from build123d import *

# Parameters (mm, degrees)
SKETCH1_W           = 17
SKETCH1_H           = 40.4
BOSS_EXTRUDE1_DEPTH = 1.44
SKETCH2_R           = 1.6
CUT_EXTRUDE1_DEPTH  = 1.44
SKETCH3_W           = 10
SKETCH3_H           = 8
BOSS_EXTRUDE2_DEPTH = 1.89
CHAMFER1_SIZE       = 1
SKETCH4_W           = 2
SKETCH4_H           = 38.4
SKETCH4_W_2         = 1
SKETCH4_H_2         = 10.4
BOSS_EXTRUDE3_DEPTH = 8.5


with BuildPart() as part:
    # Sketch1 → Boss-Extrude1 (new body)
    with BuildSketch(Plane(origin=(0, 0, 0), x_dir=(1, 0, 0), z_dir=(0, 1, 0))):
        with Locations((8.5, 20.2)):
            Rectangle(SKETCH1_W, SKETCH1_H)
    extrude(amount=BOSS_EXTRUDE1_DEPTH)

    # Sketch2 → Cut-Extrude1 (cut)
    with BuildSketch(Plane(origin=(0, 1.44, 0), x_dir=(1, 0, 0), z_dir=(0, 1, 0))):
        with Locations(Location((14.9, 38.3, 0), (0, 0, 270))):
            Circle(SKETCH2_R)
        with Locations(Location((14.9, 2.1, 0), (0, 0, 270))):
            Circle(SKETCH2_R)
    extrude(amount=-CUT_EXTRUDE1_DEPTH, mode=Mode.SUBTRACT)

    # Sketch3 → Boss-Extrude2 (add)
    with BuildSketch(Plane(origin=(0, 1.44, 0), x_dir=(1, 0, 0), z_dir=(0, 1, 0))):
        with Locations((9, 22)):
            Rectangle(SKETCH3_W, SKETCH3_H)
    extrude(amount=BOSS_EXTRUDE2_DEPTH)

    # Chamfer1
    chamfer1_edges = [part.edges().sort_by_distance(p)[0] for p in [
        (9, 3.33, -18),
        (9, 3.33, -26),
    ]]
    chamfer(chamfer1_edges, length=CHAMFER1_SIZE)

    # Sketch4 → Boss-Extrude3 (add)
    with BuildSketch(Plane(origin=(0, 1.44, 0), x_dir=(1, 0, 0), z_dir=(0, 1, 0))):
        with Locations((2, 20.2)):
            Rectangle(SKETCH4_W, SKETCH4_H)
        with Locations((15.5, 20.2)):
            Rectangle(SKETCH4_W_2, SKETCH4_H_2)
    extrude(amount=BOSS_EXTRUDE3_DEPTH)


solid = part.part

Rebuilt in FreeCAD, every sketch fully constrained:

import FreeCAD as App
import Part
import Sketcher

V = App.Vector


def edges_at(feature, points):
    """Names of the edges that pass closest to the given points."""
    edges = feature.Shape.Edges
    near = lambda p: min(range(len(edges)), key=lambda i: edges[i].distToShape(Part.Vertex(*p))[0])
    return sorted({f"Edge{near(p) + 1}" for p in points})


def add_polygon(sketch, points):
    """Adds a closed chain of lines whose ends are joined by coincident constraints."""
    first, n = sketch.GeometryCount, len(points)
    for a, b in zip(points, points[1:] + points[:1]):
        sketch.addGeometry(Part.LineSegment(App.Vector(*a, 0), App.Vector(*b, 0)), False)
    for i in range(n):
        sketch.addConstraint(Sketcher.Constraint("Coincident", first + i, 2, first + (i + 1) % n, 1))

doc = App.newDocument("Part")
body = doc.addObject("PartDesign::Body", "Body")

# Sketch on XZ plane
sketch1 = doc.addObject("Sketcher::SketchObject", "Sketch")
body.addObject(sketch1)
sketch1.AttachmentSupport = (doc.XZ_Plane, [""])
sketch1.MapMode = "FlatFace"
add_polygon(sketch1, [(0, -40), (0, 0), (17, 0), (17, -40)])  # lines 0-3
sketch1.addConstraint(Sketcher.Constraint("Vertical", 0))
sketch1.addConstraint(Sketcher.Constraint("Horizontal", 1))
sketch1.addConstraint(Sketcher.Constraint("Vertical", 2))
sketch1.addConstraint(Sketcher.Constraint("Horizontal", 3))
sketch1.addConstraint(Sketcher.Constraint("Coincident", 0, 2, -1, 1))
sketch1.addConstraint(Sketcher.Constraint("DistanceX", 1, 1, 1, 2, 17.0))
sketch1.addConstraint(Sketcher.Constraint("DistanceY", 0, 1, 0, 2, 40.4))
pad1 = doc.addObject("PartDesign::Pad", "Pad")
body.addObject(pad1)
pad1.Profile = sketch1
pad1.Length = 1.44
pad1.Reversed = True

# Sketch on XZ plane
sketch2 = doc.addObject("Sketcher::SketchObject", "Sketch001")
body.addObject(sketch2)
sketch2.AttachmentSupport = (doc.XZ_Plane, [""])
sketch2.MapMode = "FlatFace"
sketch2.AttachmentOffset = App.Placement(V(0, 0, -1.44), App.Rotation())
sketch2.addGeometry(Part.Circle(V(14.9, -38.3, 0), V(0, 0, 1), 1.6), False)
sketch2.addGeometry(Part.Circle(V(14.9, -2.1, 0), V(0, 0, 1), 1.6), False)
sketch2.addConstraint(Sketcher.Constraint("Equal", 0, 1))
sketch2.addConstraint(Sketcher.Constraint("Vertical", 0, 3, 1, 3))
sketch2.addConstraint(Sketcher.Constraint("Diameter", 0, 3.2))
sketch2.addConstraint(Sketcher.Constraint("DistanceX", -1, 1, 0, 3, 14.9))
sketch2.addConstraint(Sketcher.Constraint("DistanceY", 0, 3, -1, 1, 38.3))
sketch2.addConstraint(Sketcher.Constraint("DistanceY", 1, 3, -1, 1, 2.1))
pocket1 = doc.addObject("PartDesign::Pocket", "Pocket")
body.addObject(pocket1)
pocket1.Profile = sketch2
pocket1.Length = 1.44
pocket1.Reversed = True

# Sketch on XZ plane
sketch3 = doc.addObject("Sketcher::SketchObject", "Sketch002")
body.addObject(sketch3)
sketch3.AttachmentSupport = (doc.XZ_Plane, [""])
sketch3.MapMode = "FlatFace"
sketch3.AttachmentOffset = App.Placement(V(0, 0, -1.44), App.Rotation())
add_polygon(sketch3, [(4, -26), (4, -18), (14, -18), (14, -26)])  # lines 0-3
sketch3.addConstraint(Sketcher.Constraint("Vertical", 0))
sketch3.addConstraint(Sketcher.Constraint("Horizontal", 1))
sketch3.addConstraint(Sketcher.Constraint("Vertical", 2))
sketch3.addConstraint(Sketcher.Constraint("Horizontal", 3))
sketch3.addConstraint(Sketcher.Constraint("DistanceX", 1, 1, 1, 2, 10.0))
sketch3.addConstraint(Sketcher.Constraint("DistanceY", 0, 1, 0, 2, 8.0))
sketch3.addConstraint(Sketcher.Constraint("DistanceX", -1, 1, 0, 2, 4.0))
sketch3.addConstraint(Sketcher.Constraint("DistanceY", 0, 2, -1, 1, 18.0))
pad2 = doc.addObject("PartDesign::Pad", "Pad001")
body.addObject(pad2)
pad2.Profile = sketch3
pad2.Length = 1.89
pad2.Reversed = True
doc.recompute()

chamfer = doc.addObject("PartDesign::Chamfer", "Chamfer")
body.addObject(chamfer)
chamfer.Base = (pad2, edges_at(pad2, [(9, 3.33, -18), (9, 3.33, -26)]))
chamfer.Size = 1

# Sketch on XZ plane
sketch4 = doc.addObject("Sketcher::SketchObject", "Sketch003")
body.addObject(sketch4)
sketch4.AttachmentSupport = (doc.XZ_Plane, [""])
sketch4.MapMode = "FlatFace"
sketch4.AttachmentOffset = App.Placement(V(0, 0, -1.44), App.Rotation())
add_polygon(sketch4, [(1, -39.4), (1, -1), (3, -1), (3, -39.4)])  # lines 0-3
add_polygon(sketch4, [(15, -25.4), (15, -15), (16, -15), (16, -25.4)])  # lines 4-7
sketch4.addConstraint(Sketcher.Constraint("Vertical", 0))
sketch4.addConstraint(Sketcher.Constraint("Horizontal", 1))
sketch4.addConstraint(Sketcher.Constraint("Vertical", 2))
sketch4.addConstraint(Sketcher.Constraint("Horizontal", 3))
sketch4.addConstraint(Sketcher.Constraint("Vertical", 4))
sketch4.addConstraint(Sketcher.Constraint("Horizontal", 5))
sketch4.addConstraint(Sketcher.Constraint("Vertical", 6))
sketch4.addConstraint(Sketcher.Constraint("Horizontal", 7))
sketch4.addConstraint(Sketcher.Constraint("DistanceX", 1, 1, 1, 2, 2.0))
sketch4.addConstraint(Sketcher.Constraint("DistanceX", 5, 1, 5, 2, 1.0))
sketch4.addConstraint(Sketcher.Constraint("DistanceY", 0, 1, 0, 2, 38.4))
sketch4.addConstraint(Sketcher.Constraint("DistanceY", 4, 1, 4, 2, 10.4))
sketch4.addConstraint(Sketcher.Constraint("DistanceX", -1, 1, 0, 2, 1.0))
sketch4.addConstraint(Sketcher.Constraint("DistanceY", 0, 2, -1, 1, 1.0))
sketch4.addConstraint(Sketcher.Constraint("DistanceX", -1, 1, 4, 2, 15.0))
sketch4.addConstraint(Sketcher.Constraint("DistanceY", 4, 2, -1, 1, 15.0))
pad3 = doc.addObject("PartDesign::Pad", "Pad002")
body.addObject(pad3)
pad3.Profile = sketch4
pad3.Length = 8.5
pad3.Reversed = True

doc.recompute()
